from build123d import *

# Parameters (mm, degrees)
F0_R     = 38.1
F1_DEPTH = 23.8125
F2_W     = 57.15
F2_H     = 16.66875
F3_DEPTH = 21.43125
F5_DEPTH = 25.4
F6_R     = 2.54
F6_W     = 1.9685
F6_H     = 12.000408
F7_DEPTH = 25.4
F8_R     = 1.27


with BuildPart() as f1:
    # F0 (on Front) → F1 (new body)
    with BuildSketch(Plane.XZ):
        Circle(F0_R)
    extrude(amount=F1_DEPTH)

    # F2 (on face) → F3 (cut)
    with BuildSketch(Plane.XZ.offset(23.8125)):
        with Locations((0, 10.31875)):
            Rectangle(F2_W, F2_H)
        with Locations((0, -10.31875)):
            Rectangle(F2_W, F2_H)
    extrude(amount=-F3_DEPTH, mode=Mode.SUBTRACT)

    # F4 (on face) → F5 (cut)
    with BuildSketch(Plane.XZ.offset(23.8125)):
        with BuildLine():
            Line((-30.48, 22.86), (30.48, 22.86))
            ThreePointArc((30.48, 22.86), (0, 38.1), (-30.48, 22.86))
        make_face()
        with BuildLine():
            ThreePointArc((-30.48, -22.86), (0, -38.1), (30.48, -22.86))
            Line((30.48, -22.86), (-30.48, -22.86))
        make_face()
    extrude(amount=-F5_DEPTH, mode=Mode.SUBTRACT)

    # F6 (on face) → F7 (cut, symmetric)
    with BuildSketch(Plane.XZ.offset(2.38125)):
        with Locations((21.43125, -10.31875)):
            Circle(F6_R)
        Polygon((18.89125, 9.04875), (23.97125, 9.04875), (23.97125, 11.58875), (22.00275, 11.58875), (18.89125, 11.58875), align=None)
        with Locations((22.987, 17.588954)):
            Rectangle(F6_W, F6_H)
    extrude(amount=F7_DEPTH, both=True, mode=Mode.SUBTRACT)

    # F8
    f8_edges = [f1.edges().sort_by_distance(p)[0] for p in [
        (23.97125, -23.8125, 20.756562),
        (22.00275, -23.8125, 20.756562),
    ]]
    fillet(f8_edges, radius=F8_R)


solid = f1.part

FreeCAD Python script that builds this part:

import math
import FreeCAD as App
import Part
import Sketcher

V = App.Vector
Q = App.Units.Quantity


def edges_at(feature, points):
    """Names of the edges that pass closest to the given points."""
    edges = feature.Shape.Edges
    near = lambda p: min(range(len(edges)), key=lambda i: edges[i].distToShape(Part.Vertex(*p))[0])
    return sorted({f"Edge{near(p) + 1}" for p in points})

doc = App.newDocument("Part")
body = doc.addObject("PartDesign::Body", "Body")

# Sketch on XZ plane
sketch1 = body.newObject("Sketcher::SketchObject", "Sketch")
sketch1.AttachmentSupport = (doc.getObject("XZ_Plane"), [""])
sketch1.MapMode = "FlatFace"
sketch1.addGeometry(Part.Circle(V(0, 0, 0), V(0, 0, 1), 38), False)
sketch1.addConstraint([
    Sketcher.Constraint("Coincident", 0, 3, -1, 1),
    Sketcher.Constraint("Diameter", 0, Q("3 in")),
])
pad1 = body.newObject("PartDesign::Pad", "Pad")
pad1.Profile = sketch1
pad1.Length = Q("0.9375 in")

# Sketch on XZ plane
sketch2 = body.newObject("Sketcher::SketchObject", "Sketch001")
sketch2.AttachmentSupport = (doc.getObject("XZ_Plane"), [""])
sketch2.MapMode = "FlatFace"
sketch2.AttachmentOffset = App.Placement(V(0, 0, 0.9375 * 25.4), App.Rotation())
sketch2.addGeometry([
    Part.LineSegment(V(-29, 19, 0), V(-29, 2, 0)),  # 0
    Part.LineSegment(V(-29, 2, 0), V(29, 2, 0)),  # 1
    Part.LineSegment(V(29, 2, 0), V(29, 19, 0)),  # 2
    Part.LineSegment(V(29, 19, 0), V(-29, 19, 0)),  # 3
    Part.LineSegment(V(-29, -2, 0), V(-29, -19, 0)),  # 4
    Part.LineSegment(V(-29, -19, 0), V(29, -19, 0)),  # 5
    Part.LineSegment(V(29, -19, 0), V(29, -2, 0)),  # 6
    Part.LineSegment(V(29, -2, 0), V(-29, -2, 0)),  # 7
], False)
sketch2.addConstraint([
    Sketcher.Constraint("Coincident", 0, 2, 1, 1),
    Sketcher.Constraint("Coincident", 1, 2, 2, 1),
    Sketcher.Constraint("Coincident", 2, 2, 3, 1),
    Sketcher.Constraint("Coincident", 3, 2, 0, 1),
    Sketcher.Constraint("Coincident", 4, 2, 5, 1),
    Sketcher.Constraint("Coincident", 5, 2, 6, 1),
    Sketcher.Constraint("Coincident", 6, 2, 7, 1),
    Sketcher.Constraint("Coincident", 7, 2, 4, 1),
    Sketcher.Constraint("Vertical", 0),
    Sketcher.Constraint("Horizontal", 1),
    Sketcher.Constraint("Vertical", 2),
    Sketcher.Constraint("Horizontal", 3),
    Sketcher.Constraint("Vertical", 4),
    Sketcher.Constraint("Horizontal", 5),
    Sketcher.Constraint("Vertical", 6),
    Sketcher.Constraint("Horizontal", 7),
    Sketcher.Constraint("Symmetric", 2, 2, 4, 2, -1, 1),
    Sketcher.Constraint("Symmetric", 0, 2, 6, 2, -1, 1),
    Sketcher.Constraint("Vertical", 3, 2, 4, 2),
    Sketcher.Constraint("DistanceX", 1, 1, 1, 2, Q("2.25 in")),
    Sketcher.Constraint("DistanceY", 0, 2, 0, 1, Q("0.65625 in")),
    Sketcher.Constraint("DistanceY", -1, 1, 0, 2, Q("0.078125 in")),
])
pocket1 = body.newObject("PartDesign::Pocket", "Pocket")
pocket1.Profile = sketch2
pocket1.Length = Q("0.84375 in")

# Sketch on XZ plane
sketch3 = body.newObject("Sketcher::SketchObject", "Sketch002")
sketch3.AttachmentSupport = (doc.getObject("XZ_Plane"), [""])
sketch3.MapMode = "FlatFace"
sketch3.AttachmentOffset = App.Placement(V(0, 0, 0.9375 * 25.4), App.Rotation())
sketch3.addGeometry([
    Part.LineSegment(V(-30, 23, 0), V(30, 23, 0)),
    Part.ArcOfCircle(Part.Circle(V(0, 0, 0), V(0, 0, 1), 38), math.radians(37), math.radians(143)),
    Part.ArcOfCircle(Part.Circle(V(0, 0, 0), V(0, 0, 1), 38), math.radians(-143), math.radians(-37)),
    Part.LineSegment(V(30, -23, 0), V(-30, -23, 0)),
], False)
sketch3.addConstraint([
    Sketcher.Constraint("Coincident", 0, 1, 1, 2),
    Sketcher.Constraint("Coincident", 1, 1, 0, 2),
    Sketcher.Constraint("Coincident", 2, 1, 3, 2),
    Sketcher.Constraint("Coincident", 3, 1, 2, 2),
    Sketcher.Constraint("Horizontal", 0),
    Sketcher.Constraint("Horizontal", 3),
    Sketcher.Constraint("Coincident", 1, 3, -1, 1),
    Sketcher.Constraint("Coincident", 2, 3, -1, 1),
    Sketcher.Constraint("Equal", 1, 2),
    Sketcher.Constraint("Vertical", 0, 1, 2, 1),
    Sketcher.Constraint("Radius", 1, Q("1.5 in")),
    Sketcher.Constraint("DistanceX", 0, 1, 0, 2, Q("2.4 in")),
])
pocket2 = body.newObject("PartDesign::Pocket", "Pocket001")
pocket2.Profile = sketch3
pocket2.Length = Q("1 in")

# Sketch on XZ plane
sketch4 = body.newObject("Sketcher::SketchObject", "Sketch003")
sketch4.AttachmentSupport = (doc.getObject("XZ_Plane"), [""])
sketch4.MapMode = "FlatFace"
sketch4.AttachmentOffset = App.Placement(V(0, 0, 0.09375 * 25.4), App.Rotation())
sketch4.addGeometry([
    Part.Circle(V(21.4, -10.3, 0), V(0, 0, 1), 2.5),  # 0
    Part.LineSegment(V(18.9, 9, 0), V(24, 9, 0)),  # 1
    Part.LineSegment(V(24, 9, 0), V(24, 23.6, 0)),  # 2
    Part.LineSegment(V(24, 23.6, 0), V(22, 23.6, 0)),  # 3
    Part.LineSegment(V(22, 23.6, 0), V(22, 11.6, 0)),  # 4
    Part.LineSegment(V(22, 11.6, 0), V(18.9, 11.6, 0)),  # 5
    Part.LineSegment(V(18.9, 11.6, 0), V(18.9, 9, 0)),  # 6
], False)
sketch4.addConstraint([
    Sketcher.Constraint("Coincident", 1, 2, 2, 1),
    Sketcher.Constraint("Coincident", 2, 2, 3, 1),
    Sketcher.Constraint("Coincident", 3, 2, 4, 1),
    Sketcher.Constraint("Coincident", 4, 2, 5, 1),
    Sketcher.Constraint("Coincident", 5, 2, 6, 1),
    Sketcher.Constraint("Coincident", 6, 2, 1, 1),
    Sketcher.Constraint("Horizontal", 1),
    Sketcher.Constraint("Vertical", 2),
    Sketcher.Constraint("Horizontal", 3),
    Sketcher.Constraint("Vertical", 4),
    Sketcher.Constraint("Horizontal", 5),
    Sketcher.Constraint("Vertical", 6),
    Sketcher.Constraint("Diameter", 0, Q("0.2 in")),
    Sketcher.Constraint("DistanceX", 1, 1, 1, 2, Q("0.2 in")),
    Sketcher.Constraint("DistanceY", 6, 2, 6, 1, Q("0.1 in")),
    Sketcher.Constraint("DistanceX", 0, 3, 1, 2, Q("0.1 in")),
    Sketcher.Constraint("DistanceX", 3, 2, 3, 1, Q("0.0775 in")),
    Sketcher.Constraint("DistanceX", -1, 1, 0, 3, Q("0.84375 in")),
    Sketcher.Constraint("DistanceY", 0, 3, -1, 1, Q("0.40625 in")),
    Sketcher.Constraint("DistanceY", 0, 3, 1, 2, Q("0.7625 in")),
    Sketcher.Constraint("DistanceY", 2, 1, 2, 2, 14.540408),
])
pocket3 = body.newObject("PartDesign::Pocket", "Pocket002")
pocket3.Profile = sketch4
pocket3.Length = Q("2 in")
pocket3.Midplane = True
doc.recompute()

fillet = body.newObject("PartDesign::Fillet", "Fillet")
fillet.Base = (pocket3, edges_at(pocket3, [(23.971, -23.812, 20.757), (22.003, -23.812, 20.757)]))
fillet.Radius = Q("0.05 in")

doc.recompute()
